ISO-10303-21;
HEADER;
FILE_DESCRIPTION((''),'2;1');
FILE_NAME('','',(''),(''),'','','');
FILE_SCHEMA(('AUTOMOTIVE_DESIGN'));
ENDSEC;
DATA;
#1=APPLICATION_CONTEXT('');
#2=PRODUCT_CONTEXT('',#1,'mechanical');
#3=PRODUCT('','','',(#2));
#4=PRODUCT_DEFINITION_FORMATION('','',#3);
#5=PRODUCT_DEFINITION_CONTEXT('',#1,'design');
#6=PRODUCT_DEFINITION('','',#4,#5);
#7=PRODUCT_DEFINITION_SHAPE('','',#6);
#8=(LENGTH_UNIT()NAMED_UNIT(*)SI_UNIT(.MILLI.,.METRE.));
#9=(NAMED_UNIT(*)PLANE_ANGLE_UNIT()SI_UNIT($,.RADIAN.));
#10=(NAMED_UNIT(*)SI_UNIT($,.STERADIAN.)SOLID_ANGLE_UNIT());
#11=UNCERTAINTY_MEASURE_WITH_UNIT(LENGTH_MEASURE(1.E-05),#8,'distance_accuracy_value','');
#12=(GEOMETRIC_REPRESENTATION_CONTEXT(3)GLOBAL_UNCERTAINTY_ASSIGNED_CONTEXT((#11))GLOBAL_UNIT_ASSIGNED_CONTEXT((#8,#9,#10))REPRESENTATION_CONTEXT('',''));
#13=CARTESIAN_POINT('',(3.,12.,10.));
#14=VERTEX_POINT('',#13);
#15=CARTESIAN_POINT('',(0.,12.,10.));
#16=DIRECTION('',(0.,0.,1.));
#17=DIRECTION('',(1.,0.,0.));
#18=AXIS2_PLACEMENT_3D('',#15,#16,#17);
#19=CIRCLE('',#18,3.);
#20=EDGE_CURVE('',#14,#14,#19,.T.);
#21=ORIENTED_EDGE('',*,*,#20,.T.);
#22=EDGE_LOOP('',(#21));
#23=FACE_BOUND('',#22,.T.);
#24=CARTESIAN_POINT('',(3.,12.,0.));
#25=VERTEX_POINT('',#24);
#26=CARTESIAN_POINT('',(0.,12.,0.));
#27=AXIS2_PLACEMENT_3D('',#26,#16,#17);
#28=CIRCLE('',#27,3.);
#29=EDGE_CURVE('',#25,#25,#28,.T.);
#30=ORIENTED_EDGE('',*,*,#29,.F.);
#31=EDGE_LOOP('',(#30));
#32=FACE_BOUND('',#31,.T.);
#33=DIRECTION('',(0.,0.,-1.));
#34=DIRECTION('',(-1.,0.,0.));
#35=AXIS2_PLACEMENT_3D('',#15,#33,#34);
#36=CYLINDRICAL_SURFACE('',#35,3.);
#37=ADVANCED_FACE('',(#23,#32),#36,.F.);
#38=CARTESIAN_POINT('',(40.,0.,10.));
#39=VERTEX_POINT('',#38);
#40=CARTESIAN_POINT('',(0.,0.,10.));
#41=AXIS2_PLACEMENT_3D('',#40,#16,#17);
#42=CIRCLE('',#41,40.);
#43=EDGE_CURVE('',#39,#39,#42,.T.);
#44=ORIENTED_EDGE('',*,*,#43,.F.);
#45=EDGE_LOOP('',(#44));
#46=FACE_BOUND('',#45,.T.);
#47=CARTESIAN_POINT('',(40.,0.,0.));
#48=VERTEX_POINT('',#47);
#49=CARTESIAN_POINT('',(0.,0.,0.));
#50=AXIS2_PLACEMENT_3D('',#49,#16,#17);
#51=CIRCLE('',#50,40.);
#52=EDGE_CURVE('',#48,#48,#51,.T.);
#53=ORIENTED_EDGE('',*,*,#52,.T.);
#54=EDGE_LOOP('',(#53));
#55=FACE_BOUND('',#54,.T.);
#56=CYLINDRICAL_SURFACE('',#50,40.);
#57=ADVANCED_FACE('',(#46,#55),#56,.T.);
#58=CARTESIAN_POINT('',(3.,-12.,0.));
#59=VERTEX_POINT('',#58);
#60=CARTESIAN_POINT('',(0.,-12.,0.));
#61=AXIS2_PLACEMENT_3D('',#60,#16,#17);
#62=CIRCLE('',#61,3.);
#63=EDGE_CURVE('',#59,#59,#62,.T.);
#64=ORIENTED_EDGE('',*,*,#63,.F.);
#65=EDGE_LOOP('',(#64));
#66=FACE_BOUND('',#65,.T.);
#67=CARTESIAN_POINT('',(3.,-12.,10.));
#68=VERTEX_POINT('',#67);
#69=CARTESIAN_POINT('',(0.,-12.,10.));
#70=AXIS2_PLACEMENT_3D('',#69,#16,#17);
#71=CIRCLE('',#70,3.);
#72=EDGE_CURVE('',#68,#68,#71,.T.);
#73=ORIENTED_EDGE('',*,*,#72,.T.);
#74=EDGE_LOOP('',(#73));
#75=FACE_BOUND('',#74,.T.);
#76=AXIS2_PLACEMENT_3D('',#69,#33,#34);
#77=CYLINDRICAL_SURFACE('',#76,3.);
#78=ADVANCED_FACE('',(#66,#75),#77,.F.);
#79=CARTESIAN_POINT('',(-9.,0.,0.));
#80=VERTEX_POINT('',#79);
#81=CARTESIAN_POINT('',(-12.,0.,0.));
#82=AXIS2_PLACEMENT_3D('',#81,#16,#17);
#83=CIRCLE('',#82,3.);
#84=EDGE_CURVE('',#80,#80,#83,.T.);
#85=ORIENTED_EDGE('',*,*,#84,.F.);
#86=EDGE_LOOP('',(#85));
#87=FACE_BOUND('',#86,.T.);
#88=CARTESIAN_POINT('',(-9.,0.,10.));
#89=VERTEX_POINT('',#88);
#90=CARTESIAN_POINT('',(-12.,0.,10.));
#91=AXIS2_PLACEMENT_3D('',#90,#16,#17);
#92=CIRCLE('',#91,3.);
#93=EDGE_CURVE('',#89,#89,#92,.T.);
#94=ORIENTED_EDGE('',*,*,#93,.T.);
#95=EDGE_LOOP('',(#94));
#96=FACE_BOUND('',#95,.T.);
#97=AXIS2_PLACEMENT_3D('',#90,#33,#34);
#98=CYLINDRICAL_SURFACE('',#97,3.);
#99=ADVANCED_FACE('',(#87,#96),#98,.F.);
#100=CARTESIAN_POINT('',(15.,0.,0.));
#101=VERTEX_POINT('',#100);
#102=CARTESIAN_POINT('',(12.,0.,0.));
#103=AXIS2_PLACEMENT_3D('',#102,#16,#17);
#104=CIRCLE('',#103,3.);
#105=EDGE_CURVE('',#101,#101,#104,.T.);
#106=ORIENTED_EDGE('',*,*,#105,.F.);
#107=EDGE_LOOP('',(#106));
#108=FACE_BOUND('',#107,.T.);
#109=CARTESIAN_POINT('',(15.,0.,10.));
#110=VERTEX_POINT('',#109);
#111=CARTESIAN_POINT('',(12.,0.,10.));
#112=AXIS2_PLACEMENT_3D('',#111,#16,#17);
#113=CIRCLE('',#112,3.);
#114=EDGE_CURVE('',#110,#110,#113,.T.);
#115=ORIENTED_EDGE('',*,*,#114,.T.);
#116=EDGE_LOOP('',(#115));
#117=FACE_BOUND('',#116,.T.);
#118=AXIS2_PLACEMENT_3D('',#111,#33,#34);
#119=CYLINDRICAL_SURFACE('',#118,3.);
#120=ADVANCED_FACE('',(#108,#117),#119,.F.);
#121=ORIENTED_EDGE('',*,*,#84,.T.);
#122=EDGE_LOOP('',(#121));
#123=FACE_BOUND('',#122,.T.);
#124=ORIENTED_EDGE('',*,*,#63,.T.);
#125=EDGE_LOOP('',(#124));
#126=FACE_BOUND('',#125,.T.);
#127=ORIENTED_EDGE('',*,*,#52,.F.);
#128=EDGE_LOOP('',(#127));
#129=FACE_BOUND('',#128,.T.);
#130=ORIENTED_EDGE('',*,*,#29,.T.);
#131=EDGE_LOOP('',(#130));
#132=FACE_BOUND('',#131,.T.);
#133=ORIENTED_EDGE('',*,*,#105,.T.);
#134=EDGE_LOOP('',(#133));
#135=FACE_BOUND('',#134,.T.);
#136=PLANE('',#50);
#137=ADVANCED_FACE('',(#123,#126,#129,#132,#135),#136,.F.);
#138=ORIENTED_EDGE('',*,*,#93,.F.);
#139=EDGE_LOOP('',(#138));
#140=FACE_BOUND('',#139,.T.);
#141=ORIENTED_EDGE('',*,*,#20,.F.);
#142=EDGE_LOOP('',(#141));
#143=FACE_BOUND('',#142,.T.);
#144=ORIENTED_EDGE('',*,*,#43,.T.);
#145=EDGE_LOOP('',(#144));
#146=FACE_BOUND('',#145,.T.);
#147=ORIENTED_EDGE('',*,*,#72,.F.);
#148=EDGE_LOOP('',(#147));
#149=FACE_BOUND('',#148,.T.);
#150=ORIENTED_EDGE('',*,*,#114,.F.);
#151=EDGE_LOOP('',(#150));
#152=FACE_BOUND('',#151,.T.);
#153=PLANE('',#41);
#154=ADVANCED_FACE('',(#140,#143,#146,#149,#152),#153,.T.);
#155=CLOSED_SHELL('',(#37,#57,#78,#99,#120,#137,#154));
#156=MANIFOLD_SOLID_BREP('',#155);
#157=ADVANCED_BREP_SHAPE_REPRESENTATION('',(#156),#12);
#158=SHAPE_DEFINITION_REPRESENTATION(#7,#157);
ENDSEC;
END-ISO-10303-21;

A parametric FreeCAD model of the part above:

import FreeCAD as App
import Part
import Sketcher
from FreeCAD import Vector
Q = App.Units.Quantity

doc = App.newDocument("Part")
params = doc.addObject("Spreadsheet::Sheet", "Params")
for row, (alias, value) in enumerate([
    ("sketch1_diameter", "35 mm"),
    ("sketch1_diameter2", "6 mm"),
    ("pad1_length", "10 mm"),
    ("sketch2_diameter", "80 mm"),
    ("sketch2_diameter2", "35 mm"),
    ("pad2_length", "10 mm"),
], start=1):
    params.set(f"A{row}", alias)
    params.set(f"B{row}", "=" + value)
    params.setAlias(f"B{row}", alias)

body = doc.addObject("PartDesign::Body", "Body")

sketch1 = body.newObject("Sketcher::SketchObject", "Sketch")
sketch1.AttachmentSupport = (doc.getObject("XY_Plane"), [""])
sketch1.MapMode = "FlatFace"
sketch1.addGeometry(Part.Circle(Vector(0, 0, 0), Vector(0, 0, 1), 17.5), False)
sketch1.addGeometry(Part.Circle(Vector(0, -12, 0), Vector(0, 0, 1), 3), False)
sketch1.addGeometry(Part.Circle(Vector(-12, 0, 0), Vector(0, 0, 1), 3), False)
sketch1.addGeometry(Part.Circle(Vector(12, 0, 0), Vector(0, 0, 1), 3), False)
sketch1.addGeometry(Part.Circle(Vector(0, 12, 0), Vector(0, 0, 1), 3), False)
sketch1.addConstraint(Sketcher.Constraint("Coincident", 0, 3, -1, 1))
sketch1.addConstraint(Sketcher.Constraint("Equal", 1, 2))
sketch1.addConstraint(Sketcher.Constraint("Equal", 2, 3))
sketch1.addConstraint(Sketcher.Constraint("Equal", 3, 4))
sketch1.addConstraint(Sketcher.Constraint("Symmetric", 2, 3, 3, 3, -1, 1))
sketch1.addConstraint(Sketcher.Constraint("Symmetric", 1, 3, 4, 3, -1, 1))
sketch1.addConstraint(Sketcher.Constraint("PointOnObject", 1, 3, -2))
sketch1.addConstraint(Sketcher.Constraint("PointOnObject", 2, 3, -1))
sketch1.addConstraint(Sketcher.Constraint("Diameter", 0, Q("35 mm")))
sketch1.addConstraint(Sketcher.Constraint("Diameter", 1, Q("6 mm")))
sketch1.addConstraint(Sketcher.Constraint("DistanceY", 1, 3, -1, 1, Q("12 mm")))
sketch1.addConstraint(Sketcher.Constraint("DistanceX", 2, 3, -1, 1, Q("12 mm")))
sketch1.setExpression("Constraints[8]", "Params.sketch1_diameter")
sketch1.setExpression("Constraints[9]", "Params.sketch1_diameter2")
pad1 = body.newObject("PartDesign::Pad", "Pad")
pad1.Profile = sketch1
pad1.setExpression("Length", "Params.pad1_length")

sketch2 = body.newObject("Sketcher::SketchObject", "Sketch001")
sketch2.AttachmentSupport = (doc.getObject("XY_Plane"), [""])
sketch2.MapMode = "FlatFace"
sketch2.addGeometry(Part.Circle(Vector(0, 0, 0), Vector(0, 0, 1), 40), False)
sketch2.addGeometry(Part.Circle(Vector(0, 0, 0), Vector(0, 0, 1), 18), False)
sketch2.addConstraint(Sketcher.Constraint("Coincident", 0, 3, -1, 1))
sketch2.addConstraint(Sketcher.Constraint("Coincident", 1, 3, -1, 1))
sketch2.addConstraint(Sketcher.Constraint("Diameter", 0, Q("80 mm")))
sketch2.addConstraint(Sketcher.Constraint("Diameter", 1, Q("35 mm")))
sketch2.setExpression("Constraints[2]", "Params.sketch2_diameter")
sketch2.setExpression("Constraints[3]", "Params.sketch2_diameter2")
pad2 = body.newObject("PartDesign::Pad", "Pad001")
pad2.Profile = sketch2
pad2.setExpression("Length", "Params.pad2_length")

doc.recompute()
